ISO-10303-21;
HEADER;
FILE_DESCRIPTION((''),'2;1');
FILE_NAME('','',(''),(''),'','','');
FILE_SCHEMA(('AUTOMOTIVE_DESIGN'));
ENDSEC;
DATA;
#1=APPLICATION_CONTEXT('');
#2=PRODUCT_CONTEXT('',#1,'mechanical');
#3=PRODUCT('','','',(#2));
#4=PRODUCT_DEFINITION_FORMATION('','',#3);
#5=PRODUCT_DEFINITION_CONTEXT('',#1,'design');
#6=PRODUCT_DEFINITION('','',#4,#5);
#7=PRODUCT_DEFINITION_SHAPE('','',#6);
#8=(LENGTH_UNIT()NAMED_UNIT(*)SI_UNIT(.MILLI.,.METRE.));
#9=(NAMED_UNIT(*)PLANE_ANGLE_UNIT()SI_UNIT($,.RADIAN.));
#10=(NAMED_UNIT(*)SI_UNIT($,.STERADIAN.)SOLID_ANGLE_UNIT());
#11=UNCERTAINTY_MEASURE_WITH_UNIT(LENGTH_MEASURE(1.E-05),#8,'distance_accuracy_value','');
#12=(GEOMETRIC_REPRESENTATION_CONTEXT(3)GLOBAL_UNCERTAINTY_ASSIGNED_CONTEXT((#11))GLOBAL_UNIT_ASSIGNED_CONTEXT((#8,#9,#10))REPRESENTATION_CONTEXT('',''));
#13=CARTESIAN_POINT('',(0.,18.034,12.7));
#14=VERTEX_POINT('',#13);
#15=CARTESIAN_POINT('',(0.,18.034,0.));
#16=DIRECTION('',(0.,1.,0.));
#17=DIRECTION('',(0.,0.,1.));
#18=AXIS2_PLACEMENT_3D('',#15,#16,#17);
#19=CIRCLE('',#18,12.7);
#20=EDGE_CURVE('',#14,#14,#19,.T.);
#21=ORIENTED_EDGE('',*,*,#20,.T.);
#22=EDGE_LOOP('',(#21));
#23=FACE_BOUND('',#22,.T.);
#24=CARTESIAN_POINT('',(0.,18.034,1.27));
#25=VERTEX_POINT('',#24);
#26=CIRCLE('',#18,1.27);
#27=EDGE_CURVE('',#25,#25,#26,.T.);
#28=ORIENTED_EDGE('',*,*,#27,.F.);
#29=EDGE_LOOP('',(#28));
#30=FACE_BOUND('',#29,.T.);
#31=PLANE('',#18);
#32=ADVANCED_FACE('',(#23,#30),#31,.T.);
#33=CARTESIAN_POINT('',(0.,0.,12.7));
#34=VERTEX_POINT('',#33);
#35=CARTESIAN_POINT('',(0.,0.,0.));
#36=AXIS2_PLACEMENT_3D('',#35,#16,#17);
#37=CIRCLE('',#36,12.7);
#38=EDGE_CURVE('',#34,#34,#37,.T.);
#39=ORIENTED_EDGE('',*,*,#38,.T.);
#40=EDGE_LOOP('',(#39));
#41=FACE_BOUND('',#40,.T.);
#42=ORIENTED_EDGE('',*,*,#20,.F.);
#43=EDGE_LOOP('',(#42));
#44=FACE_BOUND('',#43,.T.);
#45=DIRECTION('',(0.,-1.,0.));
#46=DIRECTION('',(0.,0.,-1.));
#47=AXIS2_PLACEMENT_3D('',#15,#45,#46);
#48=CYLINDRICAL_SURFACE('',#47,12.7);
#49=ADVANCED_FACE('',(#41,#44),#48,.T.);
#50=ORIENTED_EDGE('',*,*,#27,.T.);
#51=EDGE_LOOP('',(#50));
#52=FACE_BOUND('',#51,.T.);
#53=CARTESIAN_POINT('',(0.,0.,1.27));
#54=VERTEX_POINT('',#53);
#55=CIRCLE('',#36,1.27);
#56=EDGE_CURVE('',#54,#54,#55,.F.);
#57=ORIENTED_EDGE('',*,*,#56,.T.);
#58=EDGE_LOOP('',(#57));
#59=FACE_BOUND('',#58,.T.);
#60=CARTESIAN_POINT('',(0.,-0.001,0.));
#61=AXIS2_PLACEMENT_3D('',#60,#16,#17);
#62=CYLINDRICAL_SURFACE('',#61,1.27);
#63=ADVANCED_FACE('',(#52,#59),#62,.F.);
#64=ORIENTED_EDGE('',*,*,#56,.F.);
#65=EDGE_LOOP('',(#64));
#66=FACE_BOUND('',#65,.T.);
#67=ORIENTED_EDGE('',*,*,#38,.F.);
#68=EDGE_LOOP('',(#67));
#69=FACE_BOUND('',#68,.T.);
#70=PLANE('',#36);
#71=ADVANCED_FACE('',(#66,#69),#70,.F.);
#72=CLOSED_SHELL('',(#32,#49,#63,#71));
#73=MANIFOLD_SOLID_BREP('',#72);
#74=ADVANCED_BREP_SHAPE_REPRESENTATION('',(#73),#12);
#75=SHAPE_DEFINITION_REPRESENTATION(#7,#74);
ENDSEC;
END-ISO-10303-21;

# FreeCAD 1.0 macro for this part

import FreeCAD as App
import Part
import Sketcher

V = App.Vector
Q = App.Units.Quantity

doc = App.newDocument("Part")
body = doc.addObject("PartDesign::Body", "Body")

# Sketch on XZ plane
sketch1 = body.newObject("Sketcher::SketchObject", "Sketch")
sketch1.AttachmentSupport = (doc.getObject("XZ_Plane"), [""])
sketch1.MapMode = "FlatFace"
sketch1.addGeometry(Part.Circle(V(0, 0, 0), V(0, 0, 1), 13), False)
sketch1.addConstraint([
    Sketcher.Constraint("Coincident", 0, 3, -1, 1),
    Sketcher.Constraint("Diameter", 0, Q("1 in")),
])
pad1 = body.newObject("PartDesign::Pad", "Pad")
pad1.Profile = sketch1
pad1.Length = Q("0.71 in")
pad1.Reversed = True

# Sketch on XZ plane
sketch2 = body.newObject("Sketcher::SketchObject", "Sketch001")
sketch2.AttachmentSupport = (doc.getObject("XZ_Plane"), [""])
sketch2.MapMode = "FlatFace"
sketch2.AttachmentOffset = App.Placement(V(0, 0, -0.71 * 25.4), App.Rotation())
sketch2.addGeometry(Part.Circle(V(0, 0, 0), V(0, 0, 1), 1.3), False)
sketch2.addConstraint([
    Sketcher.Constraint("Coincident", 0, 3, -1, 1),
    Sketcher.Constraint("Diameter", 0, Q("0.1 in")),
])
pocket1 = body.newObject("PartDesign::Pocket", "Pocket")
pocket1.Profile = sketch2
pocket1.Type = "UpToFirst"
pocket1.Reversed = True

doc.recompute()
